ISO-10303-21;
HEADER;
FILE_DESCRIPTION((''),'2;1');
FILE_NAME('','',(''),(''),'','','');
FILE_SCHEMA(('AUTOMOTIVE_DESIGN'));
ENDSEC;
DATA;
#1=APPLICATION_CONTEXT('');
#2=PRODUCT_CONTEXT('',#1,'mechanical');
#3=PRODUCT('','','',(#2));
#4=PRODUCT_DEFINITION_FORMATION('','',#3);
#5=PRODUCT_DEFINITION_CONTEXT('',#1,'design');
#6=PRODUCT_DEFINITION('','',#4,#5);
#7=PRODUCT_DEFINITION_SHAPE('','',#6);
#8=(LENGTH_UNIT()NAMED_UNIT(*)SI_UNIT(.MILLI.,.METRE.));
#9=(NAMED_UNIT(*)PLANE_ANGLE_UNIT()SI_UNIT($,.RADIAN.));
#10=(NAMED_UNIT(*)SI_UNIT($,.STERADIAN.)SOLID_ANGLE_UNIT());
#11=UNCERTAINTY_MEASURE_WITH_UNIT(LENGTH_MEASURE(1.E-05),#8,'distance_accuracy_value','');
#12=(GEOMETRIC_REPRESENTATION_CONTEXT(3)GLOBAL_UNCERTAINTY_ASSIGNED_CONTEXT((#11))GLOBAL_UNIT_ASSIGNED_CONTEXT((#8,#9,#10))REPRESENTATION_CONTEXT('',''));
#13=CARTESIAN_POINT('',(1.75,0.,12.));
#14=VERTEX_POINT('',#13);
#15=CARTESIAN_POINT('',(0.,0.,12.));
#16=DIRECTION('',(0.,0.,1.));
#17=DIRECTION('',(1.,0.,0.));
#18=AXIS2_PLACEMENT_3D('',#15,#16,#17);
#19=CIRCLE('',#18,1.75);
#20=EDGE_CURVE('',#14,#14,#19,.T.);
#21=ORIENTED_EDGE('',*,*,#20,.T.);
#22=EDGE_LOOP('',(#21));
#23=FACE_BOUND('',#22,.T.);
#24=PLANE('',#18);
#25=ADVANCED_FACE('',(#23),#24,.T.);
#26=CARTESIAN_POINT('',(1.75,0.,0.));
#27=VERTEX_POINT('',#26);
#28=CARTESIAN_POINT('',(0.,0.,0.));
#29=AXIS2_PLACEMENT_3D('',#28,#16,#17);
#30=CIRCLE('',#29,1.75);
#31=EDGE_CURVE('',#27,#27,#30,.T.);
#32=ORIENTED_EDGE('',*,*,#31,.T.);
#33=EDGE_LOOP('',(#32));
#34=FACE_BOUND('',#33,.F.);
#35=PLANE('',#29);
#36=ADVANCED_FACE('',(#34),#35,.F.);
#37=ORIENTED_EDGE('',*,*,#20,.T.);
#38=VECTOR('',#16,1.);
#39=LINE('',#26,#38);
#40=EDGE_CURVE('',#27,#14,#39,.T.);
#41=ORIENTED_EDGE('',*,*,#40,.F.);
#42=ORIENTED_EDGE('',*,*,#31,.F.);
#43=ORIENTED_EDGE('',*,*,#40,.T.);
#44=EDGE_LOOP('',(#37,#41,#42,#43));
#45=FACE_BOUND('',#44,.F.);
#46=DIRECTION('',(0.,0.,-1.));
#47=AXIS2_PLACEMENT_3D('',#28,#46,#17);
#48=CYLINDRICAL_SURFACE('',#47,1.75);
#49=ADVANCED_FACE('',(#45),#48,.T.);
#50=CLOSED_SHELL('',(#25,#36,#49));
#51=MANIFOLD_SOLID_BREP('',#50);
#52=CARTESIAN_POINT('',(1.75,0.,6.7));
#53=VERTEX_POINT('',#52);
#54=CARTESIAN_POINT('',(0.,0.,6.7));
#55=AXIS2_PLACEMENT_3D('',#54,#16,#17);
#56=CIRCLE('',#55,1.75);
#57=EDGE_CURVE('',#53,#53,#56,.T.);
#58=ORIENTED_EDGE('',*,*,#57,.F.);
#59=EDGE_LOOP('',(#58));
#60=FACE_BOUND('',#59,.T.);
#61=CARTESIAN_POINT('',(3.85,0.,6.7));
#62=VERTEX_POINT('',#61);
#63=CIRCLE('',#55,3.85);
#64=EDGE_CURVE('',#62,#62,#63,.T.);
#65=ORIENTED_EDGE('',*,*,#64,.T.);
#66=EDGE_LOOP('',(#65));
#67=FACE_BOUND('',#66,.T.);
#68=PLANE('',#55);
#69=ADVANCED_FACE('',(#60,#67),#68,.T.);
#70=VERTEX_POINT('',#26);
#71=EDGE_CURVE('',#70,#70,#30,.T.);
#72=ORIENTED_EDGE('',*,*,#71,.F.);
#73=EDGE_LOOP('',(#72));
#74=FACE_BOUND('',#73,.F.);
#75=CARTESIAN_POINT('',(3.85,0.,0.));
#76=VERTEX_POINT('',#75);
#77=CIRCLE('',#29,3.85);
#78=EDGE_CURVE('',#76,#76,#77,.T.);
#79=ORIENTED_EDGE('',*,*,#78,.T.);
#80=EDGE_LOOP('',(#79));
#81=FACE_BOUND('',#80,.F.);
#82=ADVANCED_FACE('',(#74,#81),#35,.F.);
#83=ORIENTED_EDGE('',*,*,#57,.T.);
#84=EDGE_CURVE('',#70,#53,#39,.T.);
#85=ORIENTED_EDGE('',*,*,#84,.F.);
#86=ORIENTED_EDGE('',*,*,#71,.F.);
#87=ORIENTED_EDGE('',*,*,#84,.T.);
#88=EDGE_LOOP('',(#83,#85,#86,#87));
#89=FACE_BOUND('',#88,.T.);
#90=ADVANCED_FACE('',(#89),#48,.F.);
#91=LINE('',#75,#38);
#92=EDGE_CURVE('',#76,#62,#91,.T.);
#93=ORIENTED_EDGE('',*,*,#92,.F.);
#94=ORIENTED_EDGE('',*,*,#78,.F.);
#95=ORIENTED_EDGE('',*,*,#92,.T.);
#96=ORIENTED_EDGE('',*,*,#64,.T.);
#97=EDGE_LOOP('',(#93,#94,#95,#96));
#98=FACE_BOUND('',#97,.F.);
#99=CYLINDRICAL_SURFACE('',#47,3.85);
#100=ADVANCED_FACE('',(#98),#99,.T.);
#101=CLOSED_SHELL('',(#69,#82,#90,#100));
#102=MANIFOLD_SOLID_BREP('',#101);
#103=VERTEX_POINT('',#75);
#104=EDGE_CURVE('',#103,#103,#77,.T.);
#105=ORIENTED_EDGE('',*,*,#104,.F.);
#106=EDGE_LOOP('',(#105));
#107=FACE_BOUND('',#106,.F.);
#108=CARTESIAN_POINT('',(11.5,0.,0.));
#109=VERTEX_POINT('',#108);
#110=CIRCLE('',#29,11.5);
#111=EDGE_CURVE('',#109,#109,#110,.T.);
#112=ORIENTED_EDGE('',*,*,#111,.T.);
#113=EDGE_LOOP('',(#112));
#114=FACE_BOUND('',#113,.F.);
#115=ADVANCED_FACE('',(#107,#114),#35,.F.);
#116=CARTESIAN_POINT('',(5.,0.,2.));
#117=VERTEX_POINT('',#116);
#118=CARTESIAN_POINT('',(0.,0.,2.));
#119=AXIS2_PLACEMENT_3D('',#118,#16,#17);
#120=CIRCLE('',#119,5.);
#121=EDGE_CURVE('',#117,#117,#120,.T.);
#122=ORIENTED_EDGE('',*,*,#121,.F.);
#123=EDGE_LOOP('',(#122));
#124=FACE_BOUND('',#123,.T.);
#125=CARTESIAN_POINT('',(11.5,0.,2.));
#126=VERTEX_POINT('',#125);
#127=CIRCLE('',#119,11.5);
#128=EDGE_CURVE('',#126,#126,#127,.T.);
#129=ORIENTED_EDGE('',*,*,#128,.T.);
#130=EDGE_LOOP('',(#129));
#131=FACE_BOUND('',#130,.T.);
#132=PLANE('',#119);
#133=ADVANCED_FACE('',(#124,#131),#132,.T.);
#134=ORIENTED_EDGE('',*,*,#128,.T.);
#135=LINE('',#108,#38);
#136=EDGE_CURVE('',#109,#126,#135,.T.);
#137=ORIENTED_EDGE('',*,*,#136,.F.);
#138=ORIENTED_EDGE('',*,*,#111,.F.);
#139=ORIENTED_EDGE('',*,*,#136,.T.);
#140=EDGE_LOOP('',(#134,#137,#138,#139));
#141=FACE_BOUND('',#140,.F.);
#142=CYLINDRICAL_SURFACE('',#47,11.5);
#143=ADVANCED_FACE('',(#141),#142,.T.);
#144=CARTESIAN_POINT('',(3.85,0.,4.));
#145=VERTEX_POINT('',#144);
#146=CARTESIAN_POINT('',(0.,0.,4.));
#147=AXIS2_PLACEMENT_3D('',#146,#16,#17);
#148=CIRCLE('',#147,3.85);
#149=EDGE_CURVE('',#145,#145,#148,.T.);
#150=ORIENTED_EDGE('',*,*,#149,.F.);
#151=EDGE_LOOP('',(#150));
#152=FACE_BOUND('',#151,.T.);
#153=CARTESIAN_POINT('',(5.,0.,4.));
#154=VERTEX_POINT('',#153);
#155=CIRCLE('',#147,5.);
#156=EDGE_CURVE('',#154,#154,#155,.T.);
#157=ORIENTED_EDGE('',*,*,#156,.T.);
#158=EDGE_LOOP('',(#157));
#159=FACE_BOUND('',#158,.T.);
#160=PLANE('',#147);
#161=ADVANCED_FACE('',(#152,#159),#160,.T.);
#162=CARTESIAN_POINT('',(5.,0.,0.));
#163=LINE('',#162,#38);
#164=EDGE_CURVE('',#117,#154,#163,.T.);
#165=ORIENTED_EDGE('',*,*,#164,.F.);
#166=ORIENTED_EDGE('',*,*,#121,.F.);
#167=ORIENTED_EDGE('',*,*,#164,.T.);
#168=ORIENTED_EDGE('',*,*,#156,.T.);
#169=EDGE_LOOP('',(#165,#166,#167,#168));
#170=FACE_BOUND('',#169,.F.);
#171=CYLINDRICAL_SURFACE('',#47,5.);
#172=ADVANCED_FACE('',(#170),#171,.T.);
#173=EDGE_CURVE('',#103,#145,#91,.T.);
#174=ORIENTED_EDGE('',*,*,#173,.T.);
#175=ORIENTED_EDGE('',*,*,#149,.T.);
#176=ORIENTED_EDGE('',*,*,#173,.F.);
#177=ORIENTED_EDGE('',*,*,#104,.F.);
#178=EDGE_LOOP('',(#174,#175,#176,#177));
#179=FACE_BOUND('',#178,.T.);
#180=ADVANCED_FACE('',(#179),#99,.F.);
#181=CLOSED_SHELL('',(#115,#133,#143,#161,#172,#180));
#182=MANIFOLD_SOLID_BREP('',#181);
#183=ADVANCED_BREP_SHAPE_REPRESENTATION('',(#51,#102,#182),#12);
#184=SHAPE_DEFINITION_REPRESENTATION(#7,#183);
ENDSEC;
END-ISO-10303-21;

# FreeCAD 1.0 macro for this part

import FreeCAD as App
import Part
import Sketcher
Q = App.Units.Quantity

doc = App.newDocument("Part")
body = doc.addObject("PartDesign::Body", "Body")

# Sketch on XY plane
sketch1 = doc.addObject("Sketcher::SketchObject", "Sketch")
body.addObject(sketch1)
sketch1.AttachmentSupport = (doc.XY_Plane, [""])
sketch1.MapMode = "FlatFace"
sketch1.addGeometry([
    Part.Circle(App.Vector(0, 0, 0), App.Vector(0, 0, 1), 12),
    Part.Circle(App.Vector(0, 0, 0), App.Vector(0, 0, 1), 5),
], False)
sketch1.addConstraint([
    Sketcher.Constraint("Coincident", 0, 3, -1, 1),
    Sketcher.Constraint("Coincident", 1, 3, -1, 1),
    Sketcher.Constraint("Diameter", 0, Q("23 mm")),
    Sketcher.Constraint("Diameter", 1, Q("10 mm")),
])
pad1 = doc.addObject("PartDesign::Pad", "Pad")
body.addObject(pad1)
pad1.Profile = sketch1
pad1.Length = 2

# Sketch on XY plane
sketch2 = doc.addObject("Sketcher::SketchObject", "Sketch001")
body.addObject(sketch2)
sketch2.AttachmentSupport = (doc.XY_Plane, [""])
sketch2.MapMode = "FlatFace"
sketch2.addGeometry([
    Part.Circle(App.Vector(0, 0, 0), App.Vector(0, 0, 1), 5),
    Part.Circle(App.Vector(0, 0, 0), App.Vector(0, 0, 1), 3.9),
], False)
sketch2.addConstraint([
    Sketcher.Constraint("Coincident", 0, 3, -1, 1),
    Sketcher.Constraint("Coincident", 1, 3, -1, 1),
    Sketcher.Constraint("Diameter", 0, Q("10 mm")),
    Sketcher.Constraint("Diameter", 1, Q("7.7 mm")),
])
pad2 = doc.addObject("PartDesign::Pad", "Pad001")
body.addObject(pad2)
pad2.Profile = sketch2
pad2.Length = 4
body2 = doc.addObject("PartDesign::Body", "Body001")

# Sketch on XY plane
sketch3 = doc.addObject("Sketcher::SketchObject", "Sketch002")
body2.addObject(sketch3)
sketch3.AttachmentSupport = (doc.getObject("XY_Plane001"), [""])
sketch3.MapMode = "FlatFace"
sketch3.addGeometry(Part.Circle(App.Vector(0, 0, 0), App.Vector(0, 0, 1), 1.8), False)
sketch3.addConstraint([
    Sketcher.Constraint("Coincident", 0, 3, -1, 1),
    Sketcher.Constraint("Diameter", 0, Q("3.5 mm")),
])
pad3 = doc.addObject("PartDesign::Pad", "Pad002")
body2.addObject(pad3)
pad3.Profile = sketch3
pad3.Length = 12
body3 = doc.addObject("PartDesign::Body", "Body002")

# Sketch on XY plane
sketch4 = doc.addObject("Sketcher::SketchObject", "Sketch003")
body3.addObject(sketch4)
sketch4.AttachmentSupport = (doc.getObject("XY_Plane002"), [""])
sketch4.MapMode = "FlatFace"
sketch4.addGeometry([
    Part.Circle(App.Vector(0, 0, 0), App.Vector(0, 0, 1), 3.9),
    Part.Circle(App.Vector(0, 0, 0), App.Vector(0, 0, 1), 1.8),
], False)
sketch4.addConstraint([
    Sketcher.Constraint("Coincident", 0, 3, -1, 1),
    Sketcher.Constraint("Coincident", 1, 3, -1, 1),
    Sketcher.Constraint("Diameter", 0, Q("7.7 mm")),
    Sketcher.Constraint("Diameter", 1, Q("3.5 mm")),
])
pad4 = doc.addObject("PartDesign::Pad", "Pad003")
body3.addObject(pad4)
pad4.Profile = sketch4
pad4.Length = 6.7

doc.recompute()
